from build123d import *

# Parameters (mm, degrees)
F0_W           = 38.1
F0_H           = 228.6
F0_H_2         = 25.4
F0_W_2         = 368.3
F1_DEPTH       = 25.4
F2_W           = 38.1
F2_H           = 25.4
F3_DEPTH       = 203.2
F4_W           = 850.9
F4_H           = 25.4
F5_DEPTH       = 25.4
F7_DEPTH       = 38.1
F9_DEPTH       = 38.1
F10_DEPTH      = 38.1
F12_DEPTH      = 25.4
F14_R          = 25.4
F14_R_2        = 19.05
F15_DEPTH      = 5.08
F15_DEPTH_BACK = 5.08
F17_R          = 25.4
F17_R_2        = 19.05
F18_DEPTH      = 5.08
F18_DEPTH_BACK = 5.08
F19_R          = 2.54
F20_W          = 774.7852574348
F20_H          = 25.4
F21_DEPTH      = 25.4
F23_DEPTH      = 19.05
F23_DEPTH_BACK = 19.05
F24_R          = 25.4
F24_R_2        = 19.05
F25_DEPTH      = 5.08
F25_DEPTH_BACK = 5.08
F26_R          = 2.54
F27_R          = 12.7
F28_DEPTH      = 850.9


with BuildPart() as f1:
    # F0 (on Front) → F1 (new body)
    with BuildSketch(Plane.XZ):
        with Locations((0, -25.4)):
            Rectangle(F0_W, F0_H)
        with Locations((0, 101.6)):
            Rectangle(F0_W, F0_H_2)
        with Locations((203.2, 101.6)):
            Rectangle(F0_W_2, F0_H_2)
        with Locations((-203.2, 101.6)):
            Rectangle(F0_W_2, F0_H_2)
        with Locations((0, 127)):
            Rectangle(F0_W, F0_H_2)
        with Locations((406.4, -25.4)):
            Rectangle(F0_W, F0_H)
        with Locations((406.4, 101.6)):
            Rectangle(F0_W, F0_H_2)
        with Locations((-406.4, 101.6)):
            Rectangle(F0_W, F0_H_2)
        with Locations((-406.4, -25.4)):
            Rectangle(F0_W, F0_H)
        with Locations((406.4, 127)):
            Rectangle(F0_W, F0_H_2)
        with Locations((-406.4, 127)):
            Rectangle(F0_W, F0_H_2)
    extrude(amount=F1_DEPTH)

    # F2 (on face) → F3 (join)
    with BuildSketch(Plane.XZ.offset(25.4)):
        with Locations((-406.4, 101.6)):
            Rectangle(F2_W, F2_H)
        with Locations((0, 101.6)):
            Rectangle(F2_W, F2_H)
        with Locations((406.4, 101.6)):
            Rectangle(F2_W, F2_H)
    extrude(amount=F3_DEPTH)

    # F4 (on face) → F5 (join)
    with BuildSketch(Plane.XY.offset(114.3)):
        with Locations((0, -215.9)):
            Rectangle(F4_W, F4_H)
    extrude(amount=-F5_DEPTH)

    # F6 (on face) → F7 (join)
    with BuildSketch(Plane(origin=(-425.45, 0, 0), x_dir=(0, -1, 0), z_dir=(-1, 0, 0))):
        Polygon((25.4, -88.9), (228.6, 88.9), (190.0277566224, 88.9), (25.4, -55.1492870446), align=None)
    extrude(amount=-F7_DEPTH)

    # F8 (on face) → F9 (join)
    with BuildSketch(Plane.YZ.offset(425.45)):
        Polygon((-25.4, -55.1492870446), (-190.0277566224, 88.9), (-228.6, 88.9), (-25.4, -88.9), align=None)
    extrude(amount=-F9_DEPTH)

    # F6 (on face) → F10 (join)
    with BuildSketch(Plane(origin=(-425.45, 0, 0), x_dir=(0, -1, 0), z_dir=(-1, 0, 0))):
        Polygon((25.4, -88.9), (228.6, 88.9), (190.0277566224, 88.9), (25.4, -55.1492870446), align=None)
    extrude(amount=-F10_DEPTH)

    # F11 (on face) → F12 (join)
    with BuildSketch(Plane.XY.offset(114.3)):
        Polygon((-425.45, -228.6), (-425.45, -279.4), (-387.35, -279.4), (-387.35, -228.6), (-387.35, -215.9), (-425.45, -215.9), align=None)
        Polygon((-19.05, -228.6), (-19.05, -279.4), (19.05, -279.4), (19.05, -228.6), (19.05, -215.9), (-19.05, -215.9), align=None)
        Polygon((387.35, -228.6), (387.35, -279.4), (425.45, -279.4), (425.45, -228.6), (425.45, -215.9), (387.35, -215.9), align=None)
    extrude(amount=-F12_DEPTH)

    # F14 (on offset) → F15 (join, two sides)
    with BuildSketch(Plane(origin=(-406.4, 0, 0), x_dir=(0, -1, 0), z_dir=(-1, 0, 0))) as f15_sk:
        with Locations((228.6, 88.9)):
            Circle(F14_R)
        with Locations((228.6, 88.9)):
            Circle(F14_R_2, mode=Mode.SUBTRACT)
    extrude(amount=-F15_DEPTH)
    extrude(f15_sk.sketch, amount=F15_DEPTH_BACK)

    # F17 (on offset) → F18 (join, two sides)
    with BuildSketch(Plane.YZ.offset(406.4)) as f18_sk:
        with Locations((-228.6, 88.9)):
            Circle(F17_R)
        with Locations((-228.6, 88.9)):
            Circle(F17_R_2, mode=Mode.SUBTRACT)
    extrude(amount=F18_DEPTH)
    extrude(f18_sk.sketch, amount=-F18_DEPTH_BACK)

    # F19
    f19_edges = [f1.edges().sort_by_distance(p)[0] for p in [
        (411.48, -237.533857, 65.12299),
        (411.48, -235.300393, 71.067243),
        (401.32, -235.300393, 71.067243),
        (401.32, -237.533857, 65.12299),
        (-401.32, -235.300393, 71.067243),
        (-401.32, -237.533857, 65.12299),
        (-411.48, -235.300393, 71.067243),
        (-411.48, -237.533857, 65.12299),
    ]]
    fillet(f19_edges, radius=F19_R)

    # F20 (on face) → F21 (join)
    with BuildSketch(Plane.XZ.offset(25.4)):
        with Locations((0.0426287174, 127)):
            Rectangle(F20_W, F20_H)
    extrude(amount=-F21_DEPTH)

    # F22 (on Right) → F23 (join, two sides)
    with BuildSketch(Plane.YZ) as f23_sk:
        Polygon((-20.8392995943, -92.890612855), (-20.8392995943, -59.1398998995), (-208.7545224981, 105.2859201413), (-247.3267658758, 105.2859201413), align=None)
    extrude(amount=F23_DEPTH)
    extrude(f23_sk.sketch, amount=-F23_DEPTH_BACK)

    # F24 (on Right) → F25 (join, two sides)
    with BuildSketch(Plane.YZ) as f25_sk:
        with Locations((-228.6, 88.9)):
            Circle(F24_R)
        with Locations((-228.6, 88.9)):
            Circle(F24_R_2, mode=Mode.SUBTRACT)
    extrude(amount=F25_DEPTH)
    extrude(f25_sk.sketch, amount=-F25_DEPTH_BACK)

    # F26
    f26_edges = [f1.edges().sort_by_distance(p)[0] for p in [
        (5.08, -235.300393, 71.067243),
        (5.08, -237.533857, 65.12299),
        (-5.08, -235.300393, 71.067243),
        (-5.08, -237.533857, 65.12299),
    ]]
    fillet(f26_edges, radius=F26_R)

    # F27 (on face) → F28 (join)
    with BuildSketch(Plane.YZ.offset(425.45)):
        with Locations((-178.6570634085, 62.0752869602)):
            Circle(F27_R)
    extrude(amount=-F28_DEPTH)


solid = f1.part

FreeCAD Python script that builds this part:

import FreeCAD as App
import Part
import Sketcher

V = App.Vector
Q = App.Units.Quantity


def edges_at(feature, points):
    """Names of the edges that pass closest to the given points."""
    edges = feature.Shape.Edges
    near = lambda p: min(range(len(edges)), key=lambda i: edges[i].distToShape(Part.Vertex(*p))[0])
    return sorted({f"Edge{near(p) + 1}" for p in points})


def add_polygon(sketch, points):
    """Adds a closed chain of lines whose ends are joined by coincident constraints."""
    first, n = sketch.GeometryCount, len(points)
    for a, b in zip(points, points[1:] + points[:1]):
        sketch.addGeometry(Part.LineSegment(App.Vector(*a, 0), App.Vector(*b, 0)), False)
    for i in range(n):
        sketch.addConstraint(Sketcher.Constraint("Coincident", first + i, 2, first + (i + 1) % n, 1))

doc = App.newDocument("Part")
body = doc.addObject("PartDesign::Body", "Body")

sketch1 = doc.addObject("Sketcher::SketchObject", "Sketch")
body.addObject(sketch1)
sketch1.AttachmentSupport = (doc.XZ_Plane, [""])
sketch1.MapMode = "FlatFace"
add_polygon(sketch1, [(-19, -140), (19, -140), (19, 89), (387, 89), (387, -140), (425, -140), (425, 140), (387, 140), (387, 114), (19, 114), (19, 140), (-19, 140), (-19, 114), (-387, 114), (-387, 140), (-425, 140), (-425, -140), (-387, -140), (-387, 89), (-19, 89)])
sketch1.addConstraint(Sketcher.Constraint("Horizontal", 0))
sketch1.addConstraint(Sketcher.Constraint("Vertical", 1))
sketch1.addConstraint(Sketcher.Constraint("Horizontal", 2))
sketch1.addConstraint(Sketcher.Constraint("Vertical", 3))
sketch1.addConstraint(Sketcher.Constraint("Horizontal", 4))
sketch1.addConstraint(Sketcher.Constraint("Vertical", 5))
sketch1.addConstraint(Sketcher.Constraint("Horizontal", 6))
sketch1.addConstraint(Sketcher.Constraint("Vertical", 7))
sketch1.addConstraint(Sketcher.Constraint("Horizontal", 8))
sketch1.addConstraint(Sketcher.Constraint("Vertical", 9))
sketch1.addConstraint(Sketcher.Constraint("Horizontal", 10))
sketch1.addConstraint(Sketcher.Constraint("Vertical", 11))
sketch1.addConstraint(Sketcher.Constraint("Horizontal", 12))
sketch1.addConstraint(Sketcher.Constraint("Vertical", 13))
sketch1.addConstraint(Sketcher.Constraint("Horizontal", 14))
sketch1.addConstraint(Sketcher.Constraint("Vertical", 15))
sketch1.addConstraint(Sketcher.Constraint("Horizontal", 16))
sketch1.addConstraint(Sketcher.Constraint("Vertical", 17))
sketch1.addConstraint(Sketcher.Constraint("Horizontal", 18))
sketch1.addConstraint(Sketcher.Constraint("Vertical", 19))
sketch1.addConstraint(Sketcher.Constraint("Symmetric", 0, 2, 10, 2, -1, 1))
sketch1.addConstraint(Sketcher.Constraint("Symmetric", 3, 2, 13, 2, -1, 1))
sketch1.addConstraint(Sketcher.Constraint("Symmetric", 5, 2, 15, 2, -1, 1))
sketch1.addConstraint(Sketcher.Constraint("Symmetric", 8, 2, 11, 2, -2))
sketch1.addConstraint(Sketcher.Constraint("Symmetric", 6, 2, 13, 2, -2))
sketch1.addConstraint(Sketcher.Constraint("Symmetric", 2, 2, 17, 2, -2))
sketch1.addConstraint(Sketcher.Constraint("Horizontal", 0, 2, 3, 2))
sketch1.addConstraint(Sketcher.Constraint("Vertical", 11, 2, 18, 2))
sketch1.addConstraint(Sketcher.Constraint("Equal", 0, 4))
sketch1.addConstraint(Sketcher.Constraint("DistanceY", 1, 1, 1, 2, Q("9 in")))
sketch1.addConstraint(Sketcher.Constraint("DistanceY", 5, 1, 5, 2, Q("11 in")))
sketch1.addConstraint(Sketcher.Constraint("DistanceY", 7, 2, 7, 1, Q("1 in")))
sketch1.addConstraint(Sketcher.Constraint("DistanceX", 0, 1, 0, 2, Q("1.5 in")))
sketch1.addConstraint(Sketcher.Constraint("DistanceX", 2, 1, 2, 2, Q("14.5 in")))
pad1 = doc.addObject("PartDesign::Pad", "Pad")
body.addObject(pad1)
pad1.Profile = sketch1
pad1.Length = Q("1 in")

sketch2 = doc.addObject("Sketcher::SketchObject", "Sketch001")
body.addObject(sketch2)
sketch2.AttachmentSupport = (doc.XZ_Plane, [""])
sketch2.MapMode = "FlatFace"
sketch2.AttachmentOffset = App.Placement(V(0, 0, 1 * 25.4), App.Rotation())
add_polygon(sketch2, [(-425, 114), (-425, 89), (-387, 89), (-387, 114)])
add_polygon(sketch2, [(-19, 114), (-19, 89), (19, 89), (19, 114)])
add_polygon(sketch2, [(387, 114), (387, 89), (425, 89), (425, 114)])
sketch2.addConstraint(Sketcher.Constraint("Vertical", 0))
sketch2.addConstraint(Sketcher.Constraint("Horizontal", 1))
sketch2.addConstraint(Sketcher.Constraint("Vertical", 2))
sketch2.addConstraint(Sketcher.Constraint("Horizontal", 3))
sketch2.addConstraint(Sketcher.Constraint("Vertical", 4))
sketch2.addConstraint(Sketcher.Constraint("Horizontal", 5))
sketch2.addConstraint(Sketcher.Constraint("Vertical", 6))
sketch2.addConstraint(Sketcher.Constraint("Horizontal", 7))
sketch2.addConstraint(Sketcher.Constraint("Vertical", 8))
sketch2.addConstraint(Sketcher.Constraint("Horizontal", 9))
sketch2.addConstraint(Sketcher.Constraint("Vertical", 10))
sketch2.addConstraint(Sketcher.Constraint("Horizontal", 11))
sketch2.addConstraint(Sketcher.Constraint("Symmetric", 1, 2, 8, 2, -2))
sketch2.addConstraint(Sketcher.Constraint("Symmetric", 3, 2, 10, 2, -2))
sketch2.addConstraint(Sketcher.Constraint("Horizontal", 1, 2, 4, 2))
sketch2.addConstraint(Sketcher.Constraint("Horizontal", 3, 2, 6, 2))
sketch2.addConstraint(Sketcher.Constraint("Equal", 3, 5))
sketch2.addConstraint(Sketcher.Constraint("DistanceY", 0, 2, 0, 1, Q("1 in")))
sketch2.addConstraint(Sketcher.Constraint("DistanceX", 1, 1, 1, 2, Q("1.5 in")))
sketch2.addConstraint(Sketcher.Constraint("DistanceX", 0, 2, 4, 2, Q("16 in")))
sketch2.addConstraint(Sketcher.Constraint("DistanceX", 4, 2, 8, 2, Q("16 in")))
sketch2.addConstraint(Sketcher.Constraint("DistanceY", -1, 1, 0, 2, Q("3.5 in")))
pad2 = doc.addObject("PartDesign::Pad", "Pad001")
body.addObject(pad2)
pad2.Profile = sketch2
pad2.Length = Q("8 in")

sketch3 = doc.addObject("Sketcher::SketchObject", "Sketch002")
body.addObject(sketch3)
sketch3.AttachmentSupport = (doc.XY_Plane, [""])
sketch3.MapMode = "FlatFace"
sketch3.AttachmentOffset = App.Placement(V(0, 0, 4.5 * 25.4), App.Rotation())
add_polygon(sketch3, [(-425, -203), (-425, -229), (425, -229), (425, -203)])
sketch3.addConstraint(Sketcher.Constraint("Vertical", 0))
sketch3.addConstraint(Sketcher.Constraint("Horizontal", 1))
sketch3.addConstraint(Sketcher.Constraint("Vertical", 2))
sketch3.addConstraint(Sketcher.Constraint("Horizontal", 3))
sketch3.addConstraint(Sketcher.Constraint("DistanceY", 0, 2, 0, 1, Q("1 in")))
sketch3.addConstraint(Sketcher.Constraint("DistanceX", 1, 1, 1, 2, Q("33.5 in")))
sketch3.addConstraint(Sketcher.Constraint("DistanceY", 0, 2, -1, 1, Q("9 in")))
sketch3.addConstraint(Sketcher.Constraint("DistanceX", 0, 2, -1, 1, Q("16.75 in")))
pad3 = doc.addObject("PartDesign::Pad", "Pad002")
body.addObject(pad3)
pad3.Profile = sketch3
pad3.Length = Q("1 in")
pad3.Reversed = True

sketch4 = doc.addObject("Sketcher::SketchObject", "Sketch003")
body.addObject(sketch4)
sketch4.AttachmentSupport = (doc.YZ_Plane, [""])
sketch4.MapMode = "FlatFace"
sketch4.AttachmentOffset = App.Placement(V(0, 0, -16.75 * 25.4), App.Rotation())
add_polygon(sketch4, [(-25, -89), (-229, 89), (-190, 89), (-25, -55)])
sketch4.addConstraint(Sketcher.Constraint("Horizontal", 1))
sketch4.addConstraint(Sketcher.Constraint("Vertical", 3))
sketch4.addConstraint(Sketcher.Constraint("Parallel", 0, 2))
sketch4.addConstraint(Sketcher.Constraint("DistanceX", 0, 2, -1, 1, Q("9 in")))
sketch4.addConstraint(Sketcher.Constraint("DistanceX", 2, 2, -1, 1, Q("1 in")))
sketch4.addConstraint(Sketcher.Constraint("DistanceY", 3, 2, 1, 2, Q("7 in")))
sketch4.addConstraint(Sketcher.Constraint("DistanceY", -1, 1, 0, 2, Q("3.5 in")))
sketch4.addConstraint(Sketcher.Constraint("DistanceX", 1, 1, 1, 2, Q("38.572243 mm")))
pad4 = doc.addObject("PartDesign::Pad", "Pad003")
body.addObject(pad4)
pad4.Profile = sketch4
pad4.Length = Q("1.5 in")

sketch5 = doc.addObject("Sketcher::SketchObject", "Sketch004")
body.addObject(sketch5)
sketch5.AttachmentSupport = (doc.YZ_Plane, [""])
sketch5.MapMode = "FlatFace"
sketch5.AttachmentOffset = App.Placement(V(0, 0, 16.75 * 25.4), App.Rotation())
add_polygon(sketch5, [(-25, -55), (-190, 89), (-229, 89), (-25, -89)])
sketch5.addConstraint(Sketcher.Constraint("Horizontal", 1))
sketch5.addConstraint(Sketcher.Constraint("Vertical", 3))
sketch5.addConstraint(Sketcher.Constraint("Parallel", 0, 2))
sketch5.addConstraint(Sketcher.Constraint("DistanceX", 1, 2, -1, 1, Q("9 in")))
sketch5.addConstraint(Sketcher.Constraint("DistanceX", 2, 2, -1, 1, Q("1 in")))
sketch5.addConstraint(Sketcher.Constraint("DistanceY", 2, 2, 0, 2, Q("7 in")))
sketch5.addConstraint(Sketcher.Constraint("DistanceY", -1, 1, 0, 2, Q("3.5 in")))
sketch5.addConstraint(Sketcher.Constraint("DistanceX", 1, 2, 1, 1, Q("38.572243 mm")))
pad5 = doc.addObject("PartDesign::Pad", "Pad004")
body.addObject(pad5)
pad5.Profile = sketch5
pad5.Length = Q("1.5 in")
pad5.Reversed = True

sketch6 = doc.addObject("Sketcher::SketchObject", "Sketch005")
body.addObject(sketch6)
sketch6.AttachmentSupport = (doc.YZ_Plane, [""])
sketch6.MapMode = "FlatFace"
sketch6.AttachmentOffset = App.Placement(V(0, 0, -16.75 * 25.4), App.Rotation())
add_polygon(sketch6, [(-25, -89), (-229, 89), (-190, 89), (-25, -55)])
sketch6.addConstraint(Sketcher.Constraint("Horizontal", 1))
sketch6.addConstraint(Sketcher.Constraint("Vertical", 3))
sketch6.addConstraint(Sketcher.Constraint("Parallel", 0, 2))
sketch6.addConstraint(Sketcher.Constraint("DistanceX", 0, 2, -1, 1, Q("9 in")))
sketch6.addConstraint(Sketcher.Constraint("DistanceX", 2, 2, -1, 1, Q("1 in")))
sketch6.addConstraint(Sketcher.Constraint("DistanceY", 3, 2, 1, 2, Q("7 in")))
sketch6.addConstraint(Sketcher.Constraint("DistanceY", -1, 1, 0, 2, Q("3.5 in")))
sketch6.addConstraint(Sketcher.Constraint("DistanceX", 1, 1, 1, 2, Q("38.572243 mm")))
pad6 = doc.addObject("PartDesign::Pad", "Pad005")
body.addObject(pad6)
pad6.Profile = sketch6
pad6.Length = Q("1.5 in")

sketch7 = doc.addObject("Sketcher::SketchObject", "Sketch006")
body.addObject(sketch7)
sketch7.AttachmentSupport = (doc.XY_Plane, [""])
sketch7.MapMode = "FlatFace"
sketch7.AttachmentOffset = App.Placement(V(0, 0, 4.5 * 25.4), App.Rotation())
add_polygon(sketch7, [(-425, -279), (-387, -279), (-387, -216), (-425, -216)])
add_polygon(sketch7, [(-19, -279), (19, -279), (19, -216), (-19, -216)])
add_polygon(sketch7, [(387, -279), (425, -279), (425, -216), (387, -216)])
sketch7.addConstraint(Sketcher.Constraint("Horizontal", 0))
sketch7.addConstraint(Sketcher.Constraint("Vertical", 1))
sketch7.addConstraint(Sketcher.Constraint("Horizontal", 2))
sketch7.addConstraint(Sketcher.Constraint("Vertical", 3))
sketch7.addConstraint(Sketcher.Constraint("Horizontal", 4))
sketch7.addConstraint(Sketcher.Constraint("Vertical", 5))
sketch7.addConstraint(Sketcher.Constraint("Horizontal", 6))
sketch7.addConstraint(Sketcher.Constraint("Vertical", 7))
sketch7.addConstraint(Sketcher.Constraint("Horizontal", 8))
sketch7.addConstraint(Sketcher.Constraint("Vertical", 9))
sketch7.addConstraint(Sketcher.Constraint("Horizontal", 10))
sketch7.addConstraint(Sketcher.Constraint("Vertical", 11))
sketch7.addConstraint(Sketcher.Constraint("Symmetric", 3, 2, 8, 2, -2))
sketch7.addConstraint(Sketcher.Constraint("Symmetric", 1, 2, 10, 2, -2))
sketch7.addConstraint(Sketcher.Constraint("Horizontal", 3, 2, 4, 2))
sketch7.addConstraint(Sketcher.Constraint("Horizontal", 2, 2, 5, 2))
sketch7.addConstraint(Sketcher.Constraint("Equal", 2, 4))
sketch7.addConstraint(Sketcher.Constraint("DistanceX", 0, 1, 0, 2, Q("1.5 in")))
sketch7.addConstraint(Sketcher.Constraint("DistanceY", 1, 1, 1, 2, Q("2.5 in")))
sketch7.addConstraint(Sketcher.Constraint("DistanceY", 0, 2, -1, 1, Q("11 in")))
sketch7.addConstraint(Sketcher.Constraint("DistanceX", 0, 2, 4, 2, Q("16 in")))
sketch7.addConstraint(Sketcher.Constraint("DistanceX", 4, 2, 8, 2, Q("16 in")))
pad7 = doc.addObject("PartDesign::Pad", "Pad006")
body.addObject(pad7)
pad7.Profile = sketch7
pad7.Length = Q("1 in")
pad7.Reversed = True

sketch8 = doc.addObject("Sketcher::SketchObject", "Sketch007")
body.addObject(sketch8)
sketch8.AttachmentSupport = (doc.YZ_Plane, [""])
sketch8.MapMode = "FlatFace"
sketch8.AttachmentOffset = App.Placement(V(0, 0, -16 * 25.4), App.Rotation())
sketch8.addGeometry(Part.Circle(V(-229, 89, 0), V(0, 0, 1), 25), False)
sketch8.addGeometry(Part.Circle(V(-229, 89, 0), V(0, 0, 1), 19), False)
sketch8.addConstraint(Sketcher.Constraint("Coincident", 1, 3, 0, 3))
sketch8.addConstraint(Sketcher.Constraint("Diameter", 0, Q("2 in")))
sketch8.addConstraint(Sketcher.Constraint("Diameter", 1, Q("1.5 in")))
sketch8.addConstraint(Sketcher.Constraint("DistanceX", 0, 3, -1, 1, Q("9 in")))
sketch8.addConstraint(Sketcher.Constraint("DistanceY", -1, 1, 0, 3, Q("3.5 in")))
pad8 = doc.addObject("PartDesign::Pad", "Pad007")
body.addObject(pad8)
pad8.Profile = sketch8
pad8.Type = "TwoLengths"
pad8.Length = Q("0.2 in")
pad8.Length2 = Q("0.2 in")

sketch9 = doc.addObject("Sketcher::SketchObject", "Sketch008")
body.addObject(sketch9)
sketch9.AttachmentSupport = (doc.YZ_Plane, [""])
sketch9.MapMode = "FlatFace"
sketch9.AttachmentOffset = App.Placement(V(0, 0, 16 * 25.4), App.Rotation())
sketch9.addGeometry(Part.Circle(V(-229, 89, 0), V(0, 0, 1), 25), False)
sketch9.addGeometry(Part.Circle(V(-229, 89, 0), V(0, 0, 1), 19), False)
sketch9.addConstraint(Sketcher.Constraint("Coincident", 1, 3, 0, 3))
sketch9.addConstraint(Sketcher.Constraint("Diameter", 0, Q("2 in")))
sketch9.addConstraint(Sketcher.Constraint("Diameter", 1, Q("1.5 in")))
sketch9.addConstraint(Sketcher.Constraint("DistanceX", 0, 3, -1, 1, Q("9 in")))
sketch9.addConstraint(Sketcher.Constraint("DistanceY", -1, 1, 0, 3, Q("3.5 in")))
pad9 = doc.addObject("PartDesign::Pad", "Pad008")
body.addObject(pad9)
pad9.Profile = sketch9
pad9.Type = "TwoLengths"
pad9.Length = Q("0.2 in")
pad9.Length2 = Q("0.2 in")
doc.recompute()

fillet = doc.addObject("PartDesign::Fillet", "Fillet")
body.addObject(fillet)
fillet.Base = (pad9, edges_at(pad9, [
    (411.48, -237.534, 65.123),
    (411.48, -235.3, 71.067),
    (401.32, -235.3, 71.067),
    (401.32, -237.534, 65.123),
    (-401.32, -235.3, 71.067),
    (-401.32, -237.534, 65.123),
    (-411.48, -235.3, 71.067),
    (-411.48, -237.534, 65.123),
]))
fillet.Radius = Q("0.1 in")

sketch10 = doc.addObject("Sketcher::SketchObject", "Sketch009")
body.addObject(sketch10)
sketch10.AttachmentSupport = (doc.XZ_Plane, [""])
sketch10.MapMode = "FlatFace"
sketch10.AttachmentOffset = App.Placement(V(0, 0, 1 * 25.4), App.Rotation())
add_polygon(sketch10, [(-387, 140), (-387, 114), (387, 114), (387, 140)])
sketch10.addConstraint(Sketcher.Constraint("Vertical", 0))
sketch10.addConstraint(Sketcher.Constraint("Horizontal", 1))
sketch10.addConstraint(Sketcher.Constraint("Vertical", 2))
sketch10.addConstraint(Sketcher.Constraint("Horizontal", 3))
sketch10.addConstraint(Sketcher.Constraint("DistanceY", 0, 2, 0, 1, Q("1 in")))
sketch10.addConstraint(Sketcher.Constraint("DistanceY", -1, 1, 0, 2, Q("4.5 in")))
sketch10.addConstraint(Sketcher.Constraint("DistanceX", 0, 2, -1, 1, Q("15.25 in")))
sketch10.addConstraint(Sketcher.Constraint("DistanceX", 1, 1, 1, 2, Q("774.785257 mm")))
pad10 = doc.addObject("PartDesign::Pad", "Pad009")
body.addObject(pad10)
pad10.Profile = sketch10
pad10.Length = Q("1 in")
pad10.Reversed = True

sketch11 = doc.addObject("Sketcher::SketchObject", "Sketch010")
body.addObject(sketch11)
sketch11.AttachmentSupport = (doc.YZ_Plane, [""])
sketch11.MapMode = "FlatFace"
add_polygon(sketch11, [(-21, -93), (-21, -59), (-209, 105), (-247, 105)])
sketch11.addConstraint(Sketcher.Constraint("Vertical", 0))
sketch11.addConstraint(Sketcher.Constraint("Horizontal", 2))
sketch11.addConstraint(Sketcher.Constraint("Parallel", 1, 3))
sketch11.addConstraint(Sketcher.Constraint("DistanceX", 0, 2, -1, 1, Q("20.8393 mm")))
sketch11.addConstraint(Sketcher.Constraint("DistanceY", 0, 2, -1, 1, Q("59.1399 mm")))
sketch11.addConstraint(Sketcher.Constraint("Distance", 3, Q("300.949349 mm")))
sketch11.addConstraint(Sketcher.Constraint("DistanceX", 2, 2, 2, 1, Q("38.572243 mm")))
sketch11.addConstraint(Sketcher.Constraint("DistanceY", 0, 1, 0, 2, Q("33.750713 mm")))
pad11 = doc.addObject("PartDesign::Pad", "Pad010")
body.addObject(pad11)
pad11.Profile = sketch11
pad11.Type = "TwoLengths"
pad11.Length = Q("0.75 in")
pad11.Length2 = Q("0.75 in")

sketch12 = doc.addObject("Sketcher::SketchObject", "Sketch011")
body.addObject(sketch12)
sketch12.AttachmentSupport = (doc.YZ_Plane, [""])
sketch12.MapMode = "FlatFace"
sketch12.addGeometry(Part.Circle(V(-229, 89, 0), V(0, 0, 1), 25), False)
sketch12.addGeometry(Part.Circle(V(-229, 89, 0), V(0, 0, 1), 19), False)
sketch12.addConstraint(Sketcher.Constraint("Coincident", 1, 3, 0, 3))
sketch12.addConstraint(Sketcher.Constraint("Diameter", 0, Q("2 in")))
sketch12.addConstraint(Sketcher.Constraint("Diameter", 1, Q("1.5 in")))
sketch12.addConstraint(Sketcher.Constraint("DistanceX", 0, 3, -1, 1, Q("9 in")))
sketch12.addConstraint(Sketcher.Constraint("DistanceY", -1, 1, 0, 3, Q("3.5 in")))
pad12 = doc.addObject("PartDesign::Pad", "Pad011")
body.addObject(pad12)
pad12.Profile = sketch12
pad12.Type = "TwoLengths"
pad12.Length = Q("0.2 in")
pad12.Length2 = Q("0.2 in")
doc.recompute()

fillet2 = doc.addObject("PartDesign::Fillet", "Fillet001")
body.addObject(fillet2)
fillet2.Base = (pad12, edges_at(pad12, [
    (5.08, -235.3, 71.067),
    (5.08, -237.534, 65.123),
    (-5.08, -235.3, 71.067),
    (-5.08, -237.534, 65.123),
]))
fillet2.Radius = Q("0.1 in")

sketch13 = doc.addObject("Sketcher::SketchObject", "Sketch012")
body.addObject(sketch13)
sketch13.AttachmentSupport = (doc.YZ_Plane, [""])
sketch13.MapMode = "FlatFace"
sketch13.AttachmentOffset = App.Placement(V(0, 0, 16.75 * 25.4), App.Rotation())
sketch13.addGeometry(Part.Circle(V(-179, 62, 0), V(0, 0, 1), 13), False)
sketch13.addConstraint(Sketcher.Constraint("Diameter", 0, Q("1 in")))
sketch13.addConstraint(Sketcher.Constraint("DistanceX", 0, 3, -1, 1, Q("178.657063 mm")))
sketch13.addConstraint(Sketcher.Constraint("DistanceY", -1, 1, 0, 3, Q("62.075287 mm")))
pad13 = doc.addObject("PartDesign::Pad", "Pad012")
body.addObject(pad13)
pad13.Profile = sketch13
pad13.Length = Q("33.5 in")
pad13.Reversed = True

doc.recompute()
